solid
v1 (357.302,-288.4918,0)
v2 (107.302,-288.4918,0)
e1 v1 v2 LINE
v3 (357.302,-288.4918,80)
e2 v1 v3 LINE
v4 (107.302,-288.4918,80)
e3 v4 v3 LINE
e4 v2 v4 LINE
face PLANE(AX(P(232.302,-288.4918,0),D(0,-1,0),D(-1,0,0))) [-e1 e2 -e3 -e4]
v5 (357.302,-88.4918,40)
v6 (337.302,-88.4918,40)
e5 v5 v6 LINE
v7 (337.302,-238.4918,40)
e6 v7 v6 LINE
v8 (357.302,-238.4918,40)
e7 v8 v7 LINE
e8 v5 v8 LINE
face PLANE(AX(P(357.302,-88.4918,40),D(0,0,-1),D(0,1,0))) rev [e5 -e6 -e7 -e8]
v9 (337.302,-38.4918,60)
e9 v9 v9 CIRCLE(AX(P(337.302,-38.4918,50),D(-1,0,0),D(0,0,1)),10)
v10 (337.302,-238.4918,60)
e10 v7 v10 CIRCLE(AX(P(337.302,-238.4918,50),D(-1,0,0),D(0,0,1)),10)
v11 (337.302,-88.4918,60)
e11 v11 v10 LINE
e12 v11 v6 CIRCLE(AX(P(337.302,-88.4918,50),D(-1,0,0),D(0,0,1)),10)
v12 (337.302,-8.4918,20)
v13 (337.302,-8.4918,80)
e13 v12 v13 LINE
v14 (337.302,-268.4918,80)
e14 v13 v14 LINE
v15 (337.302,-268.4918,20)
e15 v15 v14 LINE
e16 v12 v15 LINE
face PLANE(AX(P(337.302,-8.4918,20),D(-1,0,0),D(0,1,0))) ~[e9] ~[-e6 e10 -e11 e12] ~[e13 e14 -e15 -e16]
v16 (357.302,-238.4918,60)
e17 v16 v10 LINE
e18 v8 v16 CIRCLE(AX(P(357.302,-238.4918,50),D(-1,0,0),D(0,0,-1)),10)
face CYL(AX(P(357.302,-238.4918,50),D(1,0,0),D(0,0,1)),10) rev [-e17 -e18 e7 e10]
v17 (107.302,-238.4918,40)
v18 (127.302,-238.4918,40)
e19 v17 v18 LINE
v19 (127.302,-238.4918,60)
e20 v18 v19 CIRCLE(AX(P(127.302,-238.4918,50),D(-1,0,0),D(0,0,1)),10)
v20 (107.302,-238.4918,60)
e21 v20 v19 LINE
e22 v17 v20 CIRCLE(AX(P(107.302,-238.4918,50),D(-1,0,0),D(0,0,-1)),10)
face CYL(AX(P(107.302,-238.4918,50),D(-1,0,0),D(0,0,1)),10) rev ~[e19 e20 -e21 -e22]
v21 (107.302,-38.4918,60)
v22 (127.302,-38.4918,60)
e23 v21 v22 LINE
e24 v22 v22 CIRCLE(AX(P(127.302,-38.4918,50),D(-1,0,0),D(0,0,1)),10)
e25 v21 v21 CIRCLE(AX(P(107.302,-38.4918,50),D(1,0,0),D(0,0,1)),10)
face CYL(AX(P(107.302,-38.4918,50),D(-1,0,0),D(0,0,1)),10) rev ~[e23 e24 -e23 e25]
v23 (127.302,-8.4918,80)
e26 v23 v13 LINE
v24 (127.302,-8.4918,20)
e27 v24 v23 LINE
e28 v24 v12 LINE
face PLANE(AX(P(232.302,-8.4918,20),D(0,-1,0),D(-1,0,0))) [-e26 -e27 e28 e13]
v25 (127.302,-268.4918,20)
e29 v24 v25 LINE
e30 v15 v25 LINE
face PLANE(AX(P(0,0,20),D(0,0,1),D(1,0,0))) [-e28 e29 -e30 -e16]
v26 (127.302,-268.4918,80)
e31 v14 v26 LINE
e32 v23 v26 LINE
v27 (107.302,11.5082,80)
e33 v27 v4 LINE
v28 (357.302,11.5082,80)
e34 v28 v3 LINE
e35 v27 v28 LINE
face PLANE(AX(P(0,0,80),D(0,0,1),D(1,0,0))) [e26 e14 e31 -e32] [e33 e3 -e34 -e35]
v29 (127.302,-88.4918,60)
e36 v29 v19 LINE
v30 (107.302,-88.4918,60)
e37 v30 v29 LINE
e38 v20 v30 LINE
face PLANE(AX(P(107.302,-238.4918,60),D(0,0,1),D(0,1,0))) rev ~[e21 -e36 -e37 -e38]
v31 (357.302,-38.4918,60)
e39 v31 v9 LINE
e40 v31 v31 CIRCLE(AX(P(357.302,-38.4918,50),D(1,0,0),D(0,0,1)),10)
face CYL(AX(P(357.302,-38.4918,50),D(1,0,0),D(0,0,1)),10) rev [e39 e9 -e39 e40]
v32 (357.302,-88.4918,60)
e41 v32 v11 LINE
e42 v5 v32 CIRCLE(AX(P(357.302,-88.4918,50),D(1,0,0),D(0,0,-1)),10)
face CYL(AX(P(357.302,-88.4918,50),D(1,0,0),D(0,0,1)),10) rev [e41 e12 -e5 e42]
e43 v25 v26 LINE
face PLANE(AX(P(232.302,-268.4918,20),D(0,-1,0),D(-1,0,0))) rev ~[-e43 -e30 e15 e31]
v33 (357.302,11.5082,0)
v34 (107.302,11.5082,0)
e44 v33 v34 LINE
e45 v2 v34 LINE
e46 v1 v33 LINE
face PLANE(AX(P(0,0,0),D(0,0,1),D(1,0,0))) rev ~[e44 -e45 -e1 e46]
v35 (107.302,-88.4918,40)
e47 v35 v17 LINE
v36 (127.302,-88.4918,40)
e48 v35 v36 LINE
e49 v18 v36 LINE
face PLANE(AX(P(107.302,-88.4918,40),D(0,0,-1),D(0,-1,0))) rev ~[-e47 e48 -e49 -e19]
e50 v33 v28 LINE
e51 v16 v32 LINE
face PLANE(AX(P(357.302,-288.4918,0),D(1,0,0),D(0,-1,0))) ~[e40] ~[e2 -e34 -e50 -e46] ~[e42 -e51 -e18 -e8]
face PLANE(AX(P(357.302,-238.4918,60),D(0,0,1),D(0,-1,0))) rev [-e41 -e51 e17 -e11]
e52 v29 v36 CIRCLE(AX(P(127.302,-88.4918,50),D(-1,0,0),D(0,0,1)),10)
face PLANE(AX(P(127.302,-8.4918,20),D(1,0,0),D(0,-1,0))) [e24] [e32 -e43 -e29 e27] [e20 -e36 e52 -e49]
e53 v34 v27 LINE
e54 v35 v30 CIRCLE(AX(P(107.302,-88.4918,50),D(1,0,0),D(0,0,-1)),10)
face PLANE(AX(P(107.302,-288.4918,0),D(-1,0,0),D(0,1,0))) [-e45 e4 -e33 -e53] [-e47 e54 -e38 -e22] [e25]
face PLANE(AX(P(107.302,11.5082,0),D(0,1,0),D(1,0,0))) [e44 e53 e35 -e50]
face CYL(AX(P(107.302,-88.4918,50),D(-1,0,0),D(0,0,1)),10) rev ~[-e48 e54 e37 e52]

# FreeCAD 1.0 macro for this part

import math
import FreeCAD as App
import Part
import Sketcher
from FreeCAD import Vector

doc = App.newDocument("Part")
body = doc.addObject("PartDesign::Body", "Body")

sketch1 = body.newObject("Sketcher::SketchObject", "Sketch")
sketch1.AttachmentSupport = (doc.getObject("XY_Plane"), [""])
sketch1.MapMode = "FlatFace"
sketch1.addGeometry(Part.LineSegment(Vector(232, 12, 0), Vector(107, 12, 0)), False)
sketch1.addGeometry(Part.LineSegment(Vector(107, 12, 0), Vector(107, -288, 0)), False)
sketch1.addGeometry(Part.LineSegment(Vector(107, -288, 0), Vector(232, -288, 0)), False)
sketch1.addGeometry(Part.LineSegment(Vector(232, -288, 0), Vector(232, 12, 0)), False)
sketch1.addConstraint(Sketcher.Constraint("Coincident", 0, 2, 1, 1))
sketch1.addConstraint(Sketcher.Constraint("Coincident", 1, 2, 2, 1))
sketch1.addConstraint(Sketcher.Constraint("Coincident", 2, 2, 3, 1))
sketch1.addConstraint(Sketcher.Constraint("Coincident", 3, 2, 0, 1))
sketch1.addConstraint(Sketcher.Constraint("Horizontal", 0))
sketch1.addConstraint(Sketcher.Constraint("Vertical", 1))
sketch1.addConstraint(Sketcher.Constraint("Horizontal", 2))
sketch1.addConstraint(Sketcher.Constraint("Vertical", 3))
sketch1.addConstraint(Sketcher.Constraint("DistanceX", 0, 2, 0, 1, 125.0))
sketch1.addConstraint(Sketcher.Constraint("DistanceY", 1, 2, 1, 1, 300.0))
sketch1.addConstraint(Sketcher.Constraint("DistanceX", -1, 1, 0, 2, 107.302))
sketch1.addConstraint(Sketcher.Constraint("DistanceY", -1, 1, 0, 2, 11.5082))
pad1 = body.newObject("PartDesign::Pad", "Pad")
pad1.Profile = sketch1
pad1.Length = 20

sketch2 = body.newObject("Sketcher::SketchObject", "Sketch001")
sketch2.AttachmentSupport = (doc.getObject("XY_Plane"), [""])
sketch2.MapMode = "FlatFace"
sketch2.AttachmentOffset = App.Placement(Vector(0, 0, 20), App.Rotation())
sketch2.addGeometry(Part.LineSegment(Vector(232, -8, 0), Vector(232, 12, 0)), False)
sketch2.addGeometry(Part.LineSegment(Vector(232, 12, 0), Vector(107, 12, 0)), False)
sketch2.addGeometry(Part.LineSegment(Vector(107, 12, 0), Vector(107, -288, 0)), False)
sketch2.addGeometry(Part.LineSegment(Vector(107, -288, 0), Vector(232, -288, 0)), False)
sketch2.addGeometry(Part.LineSegment(Vector(232, -288, 0), Vector(232, -268, 0)), False)
sketch2.addGeometry(Part.LineSegment(Vector(232, -268, 0), Vector(127, -268, 0)), False)
sketch2.addGeometry(Part.LineSegment(Vector(127, -268, 0), Vector(127, -8, 0)), False)
sketch2.addGeometry(Part.LineSegment(Vector(127, -8, 0), Vector(232, -8, 0)), False)
sketch2.addConstraint(Sketcher.Constraint("Coincident", 0, 2, 1, 1))
sketch2.addConstraint(Sketcher.Constraint("Coincident", 1, 2, 2, 1))
sketch2.addConstraint(Sketcher.Constraint("Coincident", 2, 2, 3, 1))
sketch2.addConstraint(Sketcher.Constraint("Coincident", 3, 2, 4, 1))
sketch2.addConstraint(Sketcher.Constraint("Coincident", 4, 2, 5, 1))
sketch2.addConstraint(Sketcher.Constraint("Coincident", 5, 2, 6, 1))
sketch2.addConstraint(Sketcher.Constraint("Coincident", 6, 2, 7, 1))
sketch2.addConstraint(Sketcher.Constraint("Coincident", 7, 2, 0, 1))
sketch2.addConstraint(Sketcher.Constraint("Vertical", 0))
sketch2.addConstraint(Sketcher.Constraint("Horizontal", 1))
sketch2.addConstraint(Sketcher.Constraint("Vertical", 2))
sketch2.addConstraint(Sketcher.Constraint("Horizontal", 3))
sketch2.addConstraint(Sketcher.Constraint("Vertical", 4))
sketch2.addConstraint(Sketcher.Constraint("Horizontal", 5))
sketch2.addConstraint(Sketcher.Constraint("Vertical", 6))
sketch2.addConstraint(Sketcher.Constraint("Horizontal", 7))
sketch2.addConstraint(Sketcher.Constraint("Vertical", 0, 2, 3, 2))
sketch2.addConstraint(Sketcher.Constraint("Equal", 0, 4))
sketch2.addConstraint(Sketcher.Constraint("DistanceY", 0, 1, 0, 2, 20.0))
sketch2.addConstraint(Sketcher.Constraint("DistanceX", 2, 2, 5, 2, 20.0))
sketch2.addConstraint(Sketcher.Constraint("DistanceX", 1, 2, 1, 1, 125.0))
sketch2.addConstraint(Sketcher.Constraint("DistanceY", 2, 2, 2, 1, 300.0))
sketch2.addConstraint(Sketcher.Constraint("DistanceX", -1, 1, 0, 2, 232.302))
sketch2.addConstraint(Sketcher.Constraint("DistanceY", -1, 1, 0, 2, 11.5082))
pad2 = body.newObject("PartDesign::Pad", "Pad001")
pad2.Profile = sketch2
pad2.Length = 60

sketch3 = body.newObject("Sketcher::SketchObject", "Sketch002")
sketch3.AttachmentSupport = (doc.getObject("YZ_Plane"), [""])
sketch3.MapMode = "FlatFace"
sketch3.AttachmentOffset = App.Placement(Vector(0, 0, 107.302), App.Rotation())
sketch3.addGeometry(Part.Circle(Vector(-38, 50, 0), Vector(0, 0, 1), 10), False)
sketch3.addGeometry(Part.ArcOfCircle(Part.Circle(Vector(-88, 50, 0), Vector(0, 0, 1), 10), math.radians(-90), math.radians(90)), False)
sketch3.addGeometry(Part.LineSegment(Vector(-88, 40, 0), Vector(-238, 40, 0)), False)
sketch3.addGeometry(Part.ArcOfCircle(Part.Circle(Vector(-238, 50, 0), Vector(0, 0, 1), 10), math.radians(90), math.radians(270)), False)
sketch3.addGeometry(Part.LineSegment(Vector(-238, 60, 0), Vector(-88, 60, 0)), False)
sketch3.addConstraint(Sketcher.Constraint("Tangent", 1, 1, 2, 1))
sketch3.addConstraint(Sketcher.Constraint("Tangent", 2, 2, 3, 2))
sketch3.addConstraint(Sketcher.Constraint("Tangent", 3, 1, 4, 1))
sketch3.addConstraint(Sketcher.Constraint("Tangent", 4, 2, 1, 2))
sketch3.addConstraint(Sketcher.Constraint("Horizontal", 2))
sketch3.addConstraint(Sketcher.Constraint("Horizontal", 4))
sketch3.addConstraint(Sketcher.Constraint("Equal", 0, 1))
sketch3.addConstraint(Sketcher.Constraint("Horizontal", 0, 3, 1, 3))
sketch3.addConstraint(Sketcher.Constraint("Diameter", 0, 20.0))
sketch3.addConstraint(Sketcher.Constraint("DistanceY", -1, 1, 0, 3, 50.0))
sketch3.addConstraint(Sketcher.Constraint("DistanceX", 1, 3, 0, 3, 50.0))
sketch3.addConstraint(Sketcher.Constraint("DistanceX", 2, 2, 2, 1, 150.0))
sketch3.addConstraint(Sketcher.Constraint("DistanceX", 0, 3, -1, 1, 38.4918))
pocket1 = body.newObject("PartDesign::Pocket", "Pocket")
pocket1.Profile = sketch3
pocket1.Type = "ThroughAll"
pocket1.Reversed = True
doc.recompute()

datumplane = body.newObject("PartDesign::Plane", "DatumPlane")
datumplane.AttachmentSupport = (doc.getObject("YZ_Plane"), [""])
datumplane.MapMode = "FlatFace"
datumplane.AttachmentOffset = App.Placement(Vector(0, 0, 232.302), App.Rotation())
mirrored = body.newObject("PartDesign::Mirrored", "Mirrored")
mirrored.TransformMode = "Transform body"
mirrored.MirrorPlane = (datumplane, [""])
body.Tip = mirrored

doc.recompute()
